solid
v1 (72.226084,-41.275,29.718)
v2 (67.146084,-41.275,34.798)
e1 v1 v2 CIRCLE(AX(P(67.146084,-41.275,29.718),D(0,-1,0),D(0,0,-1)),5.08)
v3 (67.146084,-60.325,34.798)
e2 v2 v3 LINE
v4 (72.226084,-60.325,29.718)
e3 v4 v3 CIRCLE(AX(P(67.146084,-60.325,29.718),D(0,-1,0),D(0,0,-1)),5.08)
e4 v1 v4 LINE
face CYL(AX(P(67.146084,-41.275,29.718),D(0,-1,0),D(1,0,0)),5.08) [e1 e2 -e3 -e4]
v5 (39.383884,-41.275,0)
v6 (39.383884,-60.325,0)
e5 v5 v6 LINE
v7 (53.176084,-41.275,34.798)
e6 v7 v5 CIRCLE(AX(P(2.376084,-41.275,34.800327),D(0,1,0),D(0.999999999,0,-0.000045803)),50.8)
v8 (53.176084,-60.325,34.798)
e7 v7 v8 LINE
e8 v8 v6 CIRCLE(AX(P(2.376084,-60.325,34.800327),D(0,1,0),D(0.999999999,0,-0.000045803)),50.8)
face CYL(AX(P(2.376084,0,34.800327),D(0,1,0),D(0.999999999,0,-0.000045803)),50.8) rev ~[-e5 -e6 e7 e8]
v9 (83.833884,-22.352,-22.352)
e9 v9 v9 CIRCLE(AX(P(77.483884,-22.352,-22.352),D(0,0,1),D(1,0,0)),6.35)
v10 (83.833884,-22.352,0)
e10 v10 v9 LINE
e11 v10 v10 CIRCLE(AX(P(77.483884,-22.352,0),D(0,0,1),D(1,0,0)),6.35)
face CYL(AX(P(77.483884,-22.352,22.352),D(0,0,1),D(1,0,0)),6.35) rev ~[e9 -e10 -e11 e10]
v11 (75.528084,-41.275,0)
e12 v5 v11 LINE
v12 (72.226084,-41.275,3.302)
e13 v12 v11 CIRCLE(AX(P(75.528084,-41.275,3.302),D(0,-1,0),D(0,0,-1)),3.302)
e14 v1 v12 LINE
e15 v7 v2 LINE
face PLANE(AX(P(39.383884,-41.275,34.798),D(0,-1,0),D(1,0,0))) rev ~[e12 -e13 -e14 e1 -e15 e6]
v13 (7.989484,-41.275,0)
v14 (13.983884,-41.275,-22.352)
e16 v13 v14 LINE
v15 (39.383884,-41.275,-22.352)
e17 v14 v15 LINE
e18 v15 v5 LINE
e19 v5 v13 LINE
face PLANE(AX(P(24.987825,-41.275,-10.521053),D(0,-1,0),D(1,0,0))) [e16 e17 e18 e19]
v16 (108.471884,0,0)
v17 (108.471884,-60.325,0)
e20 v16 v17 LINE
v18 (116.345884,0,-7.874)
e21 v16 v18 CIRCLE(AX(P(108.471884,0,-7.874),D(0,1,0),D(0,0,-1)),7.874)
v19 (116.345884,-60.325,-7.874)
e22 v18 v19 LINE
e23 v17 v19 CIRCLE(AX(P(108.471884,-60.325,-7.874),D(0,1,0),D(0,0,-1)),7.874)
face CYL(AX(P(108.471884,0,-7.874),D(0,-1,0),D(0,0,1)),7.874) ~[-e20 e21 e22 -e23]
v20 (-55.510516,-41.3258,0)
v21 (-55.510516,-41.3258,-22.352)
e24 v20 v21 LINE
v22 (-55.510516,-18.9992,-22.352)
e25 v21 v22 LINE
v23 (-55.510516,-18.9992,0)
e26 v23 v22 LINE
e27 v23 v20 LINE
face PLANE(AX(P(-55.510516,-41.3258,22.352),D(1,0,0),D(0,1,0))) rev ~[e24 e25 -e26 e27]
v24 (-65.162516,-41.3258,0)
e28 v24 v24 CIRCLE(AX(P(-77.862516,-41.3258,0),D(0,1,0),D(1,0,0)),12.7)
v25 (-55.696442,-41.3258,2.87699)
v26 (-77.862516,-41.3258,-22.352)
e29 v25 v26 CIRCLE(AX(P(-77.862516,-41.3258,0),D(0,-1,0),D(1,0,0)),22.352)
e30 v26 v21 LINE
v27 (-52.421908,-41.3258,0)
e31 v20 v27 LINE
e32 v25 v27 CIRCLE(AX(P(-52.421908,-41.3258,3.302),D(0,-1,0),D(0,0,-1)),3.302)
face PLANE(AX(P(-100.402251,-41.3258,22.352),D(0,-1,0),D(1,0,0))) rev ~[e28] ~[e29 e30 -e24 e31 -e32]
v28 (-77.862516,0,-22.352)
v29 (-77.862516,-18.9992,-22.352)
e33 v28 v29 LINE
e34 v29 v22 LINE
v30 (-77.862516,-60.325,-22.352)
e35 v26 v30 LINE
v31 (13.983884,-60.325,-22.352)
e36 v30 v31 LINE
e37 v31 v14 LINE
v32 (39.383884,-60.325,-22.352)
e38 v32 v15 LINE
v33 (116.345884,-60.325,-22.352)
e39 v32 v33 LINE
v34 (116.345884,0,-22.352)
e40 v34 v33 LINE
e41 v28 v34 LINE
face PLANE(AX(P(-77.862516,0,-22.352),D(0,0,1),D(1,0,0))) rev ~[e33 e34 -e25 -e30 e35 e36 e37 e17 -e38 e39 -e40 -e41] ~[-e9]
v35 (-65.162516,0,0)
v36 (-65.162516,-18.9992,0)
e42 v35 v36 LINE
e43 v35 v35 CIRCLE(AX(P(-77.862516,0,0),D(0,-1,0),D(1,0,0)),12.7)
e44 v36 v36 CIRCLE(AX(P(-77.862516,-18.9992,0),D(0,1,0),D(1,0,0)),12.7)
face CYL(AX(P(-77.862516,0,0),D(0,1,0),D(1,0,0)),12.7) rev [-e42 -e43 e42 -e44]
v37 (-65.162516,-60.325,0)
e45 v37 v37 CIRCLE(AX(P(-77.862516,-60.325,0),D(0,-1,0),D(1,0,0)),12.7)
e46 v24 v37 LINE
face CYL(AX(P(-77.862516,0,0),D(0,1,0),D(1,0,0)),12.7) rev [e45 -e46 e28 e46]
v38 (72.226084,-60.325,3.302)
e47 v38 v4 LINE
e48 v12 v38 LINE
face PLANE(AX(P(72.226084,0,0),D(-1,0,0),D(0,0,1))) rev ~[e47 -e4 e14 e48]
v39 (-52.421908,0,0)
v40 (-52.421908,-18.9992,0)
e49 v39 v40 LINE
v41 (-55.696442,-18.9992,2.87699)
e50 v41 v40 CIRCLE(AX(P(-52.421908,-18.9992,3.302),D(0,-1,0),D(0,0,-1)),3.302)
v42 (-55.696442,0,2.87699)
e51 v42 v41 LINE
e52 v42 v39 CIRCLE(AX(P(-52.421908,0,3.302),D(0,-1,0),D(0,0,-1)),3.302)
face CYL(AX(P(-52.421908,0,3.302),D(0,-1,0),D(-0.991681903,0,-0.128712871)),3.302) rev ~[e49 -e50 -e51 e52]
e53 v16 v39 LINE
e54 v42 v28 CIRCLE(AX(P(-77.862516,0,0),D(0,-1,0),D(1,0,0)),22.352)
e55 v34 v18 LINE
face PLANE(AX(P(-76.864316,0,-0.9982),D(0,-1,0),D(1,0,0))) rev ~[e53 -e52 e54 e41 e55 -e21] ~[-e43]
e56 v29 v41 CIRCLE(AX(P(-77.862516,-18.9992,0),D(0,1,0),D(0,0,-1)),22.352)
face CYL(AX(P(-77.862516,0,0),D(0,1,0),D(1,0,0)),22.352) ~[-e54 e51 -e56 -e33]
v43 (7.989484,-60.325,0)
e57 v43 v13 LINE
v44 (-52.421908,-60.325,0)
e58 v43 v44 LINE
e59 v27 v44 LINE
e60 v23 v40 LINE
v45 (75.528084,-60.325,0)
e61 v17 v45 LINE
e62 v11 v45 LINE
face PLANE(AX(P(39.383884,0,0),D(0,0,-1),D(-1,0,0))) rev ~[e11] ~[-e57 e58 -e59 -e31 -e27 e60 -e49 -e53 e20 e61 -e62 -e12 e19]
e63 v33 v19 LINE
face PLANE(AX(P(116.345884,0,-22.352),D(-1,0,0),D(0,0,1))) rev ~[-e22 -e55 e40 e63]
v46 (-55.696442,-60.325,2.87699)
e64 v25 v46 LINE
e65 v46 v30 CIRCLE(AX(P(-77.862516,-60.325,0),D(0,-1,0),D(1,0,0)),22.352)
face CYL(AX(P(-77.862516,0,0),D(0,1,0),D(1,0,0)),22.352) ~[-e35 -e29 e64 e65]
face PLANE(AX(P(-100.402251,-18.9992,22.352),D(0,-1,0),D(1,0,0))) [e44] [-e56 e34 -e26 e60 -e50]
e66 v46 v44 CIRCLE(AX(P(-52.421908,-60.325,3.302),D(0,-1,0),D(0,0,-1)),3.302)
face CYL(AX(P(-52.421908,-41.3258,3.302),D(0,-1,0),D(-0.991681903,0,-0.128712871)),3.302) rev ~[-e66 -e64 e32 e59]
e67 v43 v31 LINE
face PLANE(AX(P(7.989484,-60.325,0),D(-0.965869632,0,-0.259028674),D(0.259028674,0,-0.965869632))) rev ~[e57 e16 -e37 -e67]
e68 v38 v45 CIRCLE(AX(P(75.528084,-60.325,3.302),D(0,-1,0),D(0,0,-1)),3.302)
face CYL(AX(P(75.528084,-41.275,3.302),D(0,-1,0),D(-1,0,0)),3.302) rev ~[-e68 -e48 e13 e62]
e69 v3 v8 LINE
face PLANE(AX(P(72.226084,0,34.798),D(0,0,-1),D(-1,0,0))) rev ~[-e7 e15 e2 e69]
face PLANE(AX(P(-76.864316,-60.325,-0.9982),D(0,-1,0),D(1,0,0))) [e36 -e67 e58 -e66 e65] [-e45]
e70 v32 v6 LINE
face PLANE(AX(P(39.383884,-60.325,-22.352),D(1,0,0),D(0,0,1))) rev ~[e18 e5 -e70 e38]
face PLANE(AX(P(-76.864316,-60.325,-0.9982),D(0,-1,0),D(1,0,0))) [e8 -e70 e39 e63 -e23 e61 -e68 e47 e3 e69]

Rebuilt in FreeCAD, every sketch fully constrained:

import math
import FreeCAD as App
import Part
import Sketcher

V = App.Vector
Q = App.Units.Quantity


def edges_at(feature, points):
    """Names of the edges that pass closest to the given points."""
    edges = feature.Shape.Edges
    near = lambda p: min(range(len(edges)), key=lambda i: edges[i].distToShape(Part.Vertex(*p))[0])
    return sorted({f"Edge{near(p) + 1}" for p in points})

doc = App.newDocument("Part")
body = doc.addObject("PartDesign::Body", "Body")

# Sketch on XZ plane
sketch1 = doc.addObject("Sketcher::SketchObject", "Sketch")
body.addObject(sketch1)
sketch1.AttachmentSupport = (doc.XZ_Plane, [""])
sketch1.MapMode = "FlatFace"
sketch1.addGeometry(Part.ArcOfCircle(Part.Circle(V(-77.862516, 0, 0), V(0, 0, 1), 22.352), math.radians(0), math.radians(270)), False)
sketch1.addGeometry(Part.LineSegment(V(-77.862516, -22.352, 0), V(116.345884, -22.352, 0)), False)
sketch1.addGeometry(Part.LineSegment(V(116.345884, -22.352, 0), V(116.345884, 0, 0)), False)
sketch1.addGeometry(Part.LineSegment(V(116.345884, 0, 0), V(72.226084, 0, 0)), False)
sketch1.addGeometry(Part.LineSegment(V(72.226084, 0, 0), V(72.226084, 34.798, 0)), False)
sketch1.addGeometry(Part.LineSegment(V(72.226084, 34.798, 0), V(53.176084, 34.798, 0)), False)
sketch1.addGeometry(Part.ArcOfCircle(Part.Circle(V(2.376084, 34.800327, 0), V(0, 0, 1), 50.8), math.radians(-43.239209), math.radians(-0.002624)), False)
sketch1.addGeometry(Part.LineSegment(V(39.383884, 0, 0), V(-55.510516, 0, 0)), False)
sketch1.addGeometry(Part.Circle(V(-77.862516, 0, 0), V(0, 0, 1), 12.7), False)
sketch1.addConstraint(Sketcher.Constraint("Tangent", 0, 2, 1, 1))
sketch1.addConstraint(Sketcher.Constraint("Coincident", 1, 2, 2, 1))
sketch1.addConstraint(Sketcher.Constraint("Coincident", 2, 2, 3, 1))
sketch1.addConstraint(Sketcher.Constraint("Coincident", 3, 2, 4, 1))
sketch1.addConstraint(Sketcher.Constraint("Coincident", 4, 2, 5, 1))
sketch1.addConstraint(Sketcher.Constraint("Coincident", 5, 2, 6, 2))
sketch1.addConstraint(Sketcher.Constraint("Coincident", 6, 1, 7, 1))
sketch1.addConstraint(Sketcher.Constraint("Coincident", 7, 2, 0, 1))
sketch1.addConstraint(Sketcher.Constraint("Horizontal", 1))
sketch1.addConstraint(Sketcher.Constraint("Vertical", 2))
sketch1.addConstraint(Sketcher.Constraint("Horizontal", 3))
sketch1.addConstraint(Sketcher.Constraint("Vertical", 4))
sketch1.addConstraint(Sketcher.Constraint("Horizontal", 5))
sketch1.addConstraint(Sketcher.Constraint("Horizontal", 7))
sketch1.addConstraint(Sketcher.Constraint("Coincident", 8, 3, 0, 3))
sketch1.addConstraint(Sketcher.Constraint("PointOnObject", 0, 3, -1))
sketch1.addConstraint(Sketcher.Constraint("PointOnObject", 2, 2, -1))
sketch1.addConstraint(Sketcher.Constraint("PointOnObject", 6, 1, -1))
sketch1.addConstraint(Sketcher.Constraint("Diameter", 8, Q("1 in")))
sketch1.addConstraint(Sketcher.Constraint("Radius", 6, Q("2 in")))
sketch1.addConstraint(Sketcher.Constraint("Radius", 0, Q("0.88 in")))
sketch1.addConstraint(Sketcher.Constraint("DistanceX", 5, 2, 5, 1, Q("0.75 in")))
sketch1.addConstraint(Sketcher.Constraint("DistanceY", 4, 1, 4, 2, Q("1.37 in")))
sketch1.addConstraint(Sketcher.Constraint("DistanceX", 1, 1, 1, 2, Q("7.646 in")))
sketch1.addConstraint(Sketcher.Constraint("DistanceX", 3, 2, 3, 1, Q("1.737 in")))
sketch1.addConstraint(Sketcher.Constraint("DistanceX", 7, 2, 7, 1, Q("3.736 in")))
sketch1.addConstraint(Sketcher.Constraint("DistanceX", 0, 3, -1, 1, Q("77.862516 mm")))
pad1 = doc.addObject("PartDesign::Pad", "Pad")
body.addObject(pad1)
pad1.Profile = sketch1
pad1.Length = Q("2.375 in")

# Sketch on XZ plane
sketch2 = doc.addObject("Sketcher::SketchObject", "Sketch001")
body.addObject(sketch2)
sketch2.AttachmentSupport = (doc.XZ_Plane, [""])
sketch2.MapMode = "FlatFace"
sketch2.AttachmentOffset = App.Placement(V(0, 0, 2.375 * 25.4), App.Rotation())
sketch2.addGeometry(Part.LineSegment(V(39.383884, -22.352, 0), V(39.383884, 0, 0)), False)
sketch2.addGeometry(Part.LineSegment(V(39.383884, 0, 0), V(7.989484, 0, 0)), False)
sketch2.addGeometry(Part.LineSegment(V(7.989484, 0, 0), V(13.983884, -22.352, 0)), False)
sketch2.addGeometry(Part.LineSegment(V(13.983884, -22.352, 0), V(39.383884, -22.352, 0)), False)
sketch2.addConstraint(Sketcher.Constraint("Coincident", 0, 2, 1, 1))
sketch2.addConstraint(Sketcher.Constraint("Coincident", 1, 2, 2, 1))
sketch2.addConstraint(Sketcher.Constraint("Coincident", 2, 2, 3, 1))
sketch2.addConstraint(Sketcher.Constraint("Coincident", 3, 2, 0, 1))
sketch2.addConstraint(Sketcher.Constraint("Vertical", 0))
sketch2.addConstraint(Sketcher.Constraint("Horizontal", 1))
sketch2.addConstraint(Sketcher.Constraint("Horizontal", 3))
sketch2.addConstraint(Sketcher.Constraint("PointOnObject", 0, 2, -1))
sketch2.addConstraint(Sketcher.Constraint("DistanceX", 3, 1, 3, 2, Q("1 in")))
sketch2.addConstraint(Sketcher.Constraint("DistanceY", 0, 1, 0, 2, Q("0.88 in")))
sketch2.addConstraint(Sketcher.Constraint("DistanceX", 1, 2, 1, 1, Q("1.236 in")))
sketch2.addConstraint(Sketcher.Constraint("DistanceX", -1, 1, 0, 2, Q("39.383884 mm")))
pocket1 = doc.addObject("PartDesign::Pocket", "Pocket")
body.addObject(pocket1)
pocket1.Profile = sketch2
pocket1.Length = Q("0.75 in")

# Sketch on XY plane
sketch3 = doc.addObject("Sketcher::SketchObject", "Sketch002")
body.addObject(sketch3)
sketch3.AttachmentSupport = (doc.XY_Plane, [""])
sketch3.MapMode = "FlatFace"
sketch3.AttachmentOffset = App.Placement(V(0, 0, 1.37 * 25.4), App.Rotation())
sketch3.addGeometry(Part.LineSegment(V(39.383884, 0, 0), V(39.383884, -41.275, 0)), False)
sketch3.addGeometry(Part.LineSegment(V(39.383884, -41.275, 0), V(72.226084, -41.275, 0)), False)
sketch3.addGeometry(Part.LineSegment(V(72.226084, -41.275, 0), V(72.226084, 0, 0)), False)
sketch3.addGeometry(Part.LineSegment(V(72.226084, 0, 0), V(39.383884, 0, 0)), False)
sketch3.addConstraint(Sketcher.Constraint("Coincident", 0, 2, 1, 1))
sketch3.addConstraint(Sketcher.Constraint("Coincident", 1, 2, 2, 1))
sketch3.addConstraint(Sketcher.Constraint("Coincident", 2, 2, 3, 1))
sketch3.addConstraint(Sketcher.Constraint("Coincident", 3, 2, 0, 1))
sketch3.addConstraint(Sketcher.Constraint("Vertical", 0))
sketch3.addConstraint(Sketcher.Constraint("Horizontal", 1))
sketch3.addConstraint(Sketcher.Constraint("Vertical", 2))
sketch3.addConstraint(Sketcher.Constraint("Horizontal", 3))
sketch3.addConstraint(Sketcher.Constraint("PointOnObject", 2, 2, -1))
sketch3.addConstraint(Sketcher.Constraint("DistanceX", 1, 1, 1, 2, Q("1.293 in")))
sketch3.addConstraint(Sketcher.Constraint("DistanceY", 0, 2, 0, 1, Q("1.625 in")))
sketch3.addConstraint(Sketcher.Constraint("DistanceX", -1, 1, 0, 2, Q("39.383884 mm")))
pocket2 = doc.addObject("PartDesign::Pocket", "Pocket001")
body.addObject(pocket2)
pocket2.Profile = sketch3
pocket2.Length = Q("1.37 in")

# Sketch on XY plane
sketch4 = doc.addObject("Sketcher::SketchObject", "Sketch003")
body.addObject(sketch4)
sketch4.AttachmentSupport = (doc.XY_Plane, [""])
sketch4.MapMode = "FlatFace"
sketch4.AttachmentOffset = App.Placement(V(0, 0, 0.88 * 25.4), App.Rotation())
sketch4.addGeometry(Part.LineSegment(V(-100.402251, -18.9992, 0), V(-100.402251, -41.3258, 0)), False)
sketch4.addGeometry(Part.LineSegment(V(-100.402251, -41.3258, 0), V(-55.510516, -41.3258, 0)), False)
sketch4.addGeometry(Part.LineSegment(V(-55.510516, -41.3258, 0), V(-55.510516, -18.9992, 0)), False)
sketch4.addGeometry(Part.LineSegment(V(-55.510516, -18.9992, 0), V(-100.402251, -18.9992, 0)), False)
sketch4.addGeometry(Part.Circle(V(77.483884, -22.352, 0), V(0, 0, 1), 6.35), False)
sketch4.addConstraint(Sketcher.Constraint("Coincident", 0, 2, 1, 1))
sketch4.addConstraint(Sketcher.Constraint("Coincident", 1, 2, 2, 1))
sketch4.addConstraint(Sketcher.Constraint("Coincident", 2, 2, 3, 1))
sketch4.addConstraint(Sketcher.Constraint("Coincident", 3, 2, 0, 1))
sketch4.addConstraint(Sketcher.Constraint("Vertical", 0))
sketch4.addConstraint(Sketcher.Constraint("Horizontal", 1))
sketch4.addConstraint(Sketcher.Constraint("Vertical", 2))
sketch4.addConstraint(Sketcher.Constraint("Horizontal", 3))
sketch4.addConstraint(Sketcher.Constraint("Diameter", 4, Q("0.5 in")))
sketch4.addConstraint(Sketcher.Constraint("DistanceY", 0, 2, 0, 1, Q("0.879 in")))
sketch4.addConstraint(Sketcher.Constraint("DistanceY", 4, 3, -1, 1, Q("0.88 in")))
sketch4.addConstraint(Sketcher.Constraint("DistanceY", 0, 2, -1, 1, Q("1.627 in")))
sketch4.addConstraint(Sketcher.Constraint("DistanceX", 1, 2, 4, 3, Q("5.236 in")))
sketch4.addConstraint(Sketcher.Constraint("DistanceX", 1, 1, 1, 2, Q("44.891735 mm")))
sketch4.addConstraint(Sketcher.Constraint("DistanceX", 0, 2, -1, 1, Q("100.402251 mm")))
pocket3 = doc.addObject("PartDesign::Pocket", "Pocket002")
body.addObject(pocket3)
pocket3.Profile = sketch4
pocket3.Length = Q("1.76 in")
doc.recompute()

fillet = doc.addObject("PartDesign::Fillet", "Fillet")
body.addObject(fillet)
fillet.Base = (pocket3, edges_at(pocket3, [(-55.511, -50.825, 0), (-55.511, -9.5, 0)]))
fillet.Radius = Q("0.13 in")
doc.recompute()

fillet2 = doc.addObject("PartDesign::Fillet", "Fillet001")
body.addObject(fillet2)
fillet2.Base = (fillet, edges_at(fillet, [(116.346, -30.163, 0)]))
fillet2.Radius = Q("0.31 in")
doc.recompute()

fillet3 = doc.addObject("PartDesign::Fillet", "Fillet002")
body.addObject(fillet3)
fillet3.Base = (fillet2, edges_at(fillet2, [(72.226, -50.8, 34.798)]))
fillet3.Radius = Q("0.2 in")
doc.recompute()

fillet4 = doc.addObject("PartDesign::Fillet", "Fillet003")
body.addObject(fillet4)
fillet4.Base = (fillet3, edges_at(fillet3, [(72.226, -50.8, 0)]))
fillet4.Radius = Q("0.13 in")

doc.recompute()
